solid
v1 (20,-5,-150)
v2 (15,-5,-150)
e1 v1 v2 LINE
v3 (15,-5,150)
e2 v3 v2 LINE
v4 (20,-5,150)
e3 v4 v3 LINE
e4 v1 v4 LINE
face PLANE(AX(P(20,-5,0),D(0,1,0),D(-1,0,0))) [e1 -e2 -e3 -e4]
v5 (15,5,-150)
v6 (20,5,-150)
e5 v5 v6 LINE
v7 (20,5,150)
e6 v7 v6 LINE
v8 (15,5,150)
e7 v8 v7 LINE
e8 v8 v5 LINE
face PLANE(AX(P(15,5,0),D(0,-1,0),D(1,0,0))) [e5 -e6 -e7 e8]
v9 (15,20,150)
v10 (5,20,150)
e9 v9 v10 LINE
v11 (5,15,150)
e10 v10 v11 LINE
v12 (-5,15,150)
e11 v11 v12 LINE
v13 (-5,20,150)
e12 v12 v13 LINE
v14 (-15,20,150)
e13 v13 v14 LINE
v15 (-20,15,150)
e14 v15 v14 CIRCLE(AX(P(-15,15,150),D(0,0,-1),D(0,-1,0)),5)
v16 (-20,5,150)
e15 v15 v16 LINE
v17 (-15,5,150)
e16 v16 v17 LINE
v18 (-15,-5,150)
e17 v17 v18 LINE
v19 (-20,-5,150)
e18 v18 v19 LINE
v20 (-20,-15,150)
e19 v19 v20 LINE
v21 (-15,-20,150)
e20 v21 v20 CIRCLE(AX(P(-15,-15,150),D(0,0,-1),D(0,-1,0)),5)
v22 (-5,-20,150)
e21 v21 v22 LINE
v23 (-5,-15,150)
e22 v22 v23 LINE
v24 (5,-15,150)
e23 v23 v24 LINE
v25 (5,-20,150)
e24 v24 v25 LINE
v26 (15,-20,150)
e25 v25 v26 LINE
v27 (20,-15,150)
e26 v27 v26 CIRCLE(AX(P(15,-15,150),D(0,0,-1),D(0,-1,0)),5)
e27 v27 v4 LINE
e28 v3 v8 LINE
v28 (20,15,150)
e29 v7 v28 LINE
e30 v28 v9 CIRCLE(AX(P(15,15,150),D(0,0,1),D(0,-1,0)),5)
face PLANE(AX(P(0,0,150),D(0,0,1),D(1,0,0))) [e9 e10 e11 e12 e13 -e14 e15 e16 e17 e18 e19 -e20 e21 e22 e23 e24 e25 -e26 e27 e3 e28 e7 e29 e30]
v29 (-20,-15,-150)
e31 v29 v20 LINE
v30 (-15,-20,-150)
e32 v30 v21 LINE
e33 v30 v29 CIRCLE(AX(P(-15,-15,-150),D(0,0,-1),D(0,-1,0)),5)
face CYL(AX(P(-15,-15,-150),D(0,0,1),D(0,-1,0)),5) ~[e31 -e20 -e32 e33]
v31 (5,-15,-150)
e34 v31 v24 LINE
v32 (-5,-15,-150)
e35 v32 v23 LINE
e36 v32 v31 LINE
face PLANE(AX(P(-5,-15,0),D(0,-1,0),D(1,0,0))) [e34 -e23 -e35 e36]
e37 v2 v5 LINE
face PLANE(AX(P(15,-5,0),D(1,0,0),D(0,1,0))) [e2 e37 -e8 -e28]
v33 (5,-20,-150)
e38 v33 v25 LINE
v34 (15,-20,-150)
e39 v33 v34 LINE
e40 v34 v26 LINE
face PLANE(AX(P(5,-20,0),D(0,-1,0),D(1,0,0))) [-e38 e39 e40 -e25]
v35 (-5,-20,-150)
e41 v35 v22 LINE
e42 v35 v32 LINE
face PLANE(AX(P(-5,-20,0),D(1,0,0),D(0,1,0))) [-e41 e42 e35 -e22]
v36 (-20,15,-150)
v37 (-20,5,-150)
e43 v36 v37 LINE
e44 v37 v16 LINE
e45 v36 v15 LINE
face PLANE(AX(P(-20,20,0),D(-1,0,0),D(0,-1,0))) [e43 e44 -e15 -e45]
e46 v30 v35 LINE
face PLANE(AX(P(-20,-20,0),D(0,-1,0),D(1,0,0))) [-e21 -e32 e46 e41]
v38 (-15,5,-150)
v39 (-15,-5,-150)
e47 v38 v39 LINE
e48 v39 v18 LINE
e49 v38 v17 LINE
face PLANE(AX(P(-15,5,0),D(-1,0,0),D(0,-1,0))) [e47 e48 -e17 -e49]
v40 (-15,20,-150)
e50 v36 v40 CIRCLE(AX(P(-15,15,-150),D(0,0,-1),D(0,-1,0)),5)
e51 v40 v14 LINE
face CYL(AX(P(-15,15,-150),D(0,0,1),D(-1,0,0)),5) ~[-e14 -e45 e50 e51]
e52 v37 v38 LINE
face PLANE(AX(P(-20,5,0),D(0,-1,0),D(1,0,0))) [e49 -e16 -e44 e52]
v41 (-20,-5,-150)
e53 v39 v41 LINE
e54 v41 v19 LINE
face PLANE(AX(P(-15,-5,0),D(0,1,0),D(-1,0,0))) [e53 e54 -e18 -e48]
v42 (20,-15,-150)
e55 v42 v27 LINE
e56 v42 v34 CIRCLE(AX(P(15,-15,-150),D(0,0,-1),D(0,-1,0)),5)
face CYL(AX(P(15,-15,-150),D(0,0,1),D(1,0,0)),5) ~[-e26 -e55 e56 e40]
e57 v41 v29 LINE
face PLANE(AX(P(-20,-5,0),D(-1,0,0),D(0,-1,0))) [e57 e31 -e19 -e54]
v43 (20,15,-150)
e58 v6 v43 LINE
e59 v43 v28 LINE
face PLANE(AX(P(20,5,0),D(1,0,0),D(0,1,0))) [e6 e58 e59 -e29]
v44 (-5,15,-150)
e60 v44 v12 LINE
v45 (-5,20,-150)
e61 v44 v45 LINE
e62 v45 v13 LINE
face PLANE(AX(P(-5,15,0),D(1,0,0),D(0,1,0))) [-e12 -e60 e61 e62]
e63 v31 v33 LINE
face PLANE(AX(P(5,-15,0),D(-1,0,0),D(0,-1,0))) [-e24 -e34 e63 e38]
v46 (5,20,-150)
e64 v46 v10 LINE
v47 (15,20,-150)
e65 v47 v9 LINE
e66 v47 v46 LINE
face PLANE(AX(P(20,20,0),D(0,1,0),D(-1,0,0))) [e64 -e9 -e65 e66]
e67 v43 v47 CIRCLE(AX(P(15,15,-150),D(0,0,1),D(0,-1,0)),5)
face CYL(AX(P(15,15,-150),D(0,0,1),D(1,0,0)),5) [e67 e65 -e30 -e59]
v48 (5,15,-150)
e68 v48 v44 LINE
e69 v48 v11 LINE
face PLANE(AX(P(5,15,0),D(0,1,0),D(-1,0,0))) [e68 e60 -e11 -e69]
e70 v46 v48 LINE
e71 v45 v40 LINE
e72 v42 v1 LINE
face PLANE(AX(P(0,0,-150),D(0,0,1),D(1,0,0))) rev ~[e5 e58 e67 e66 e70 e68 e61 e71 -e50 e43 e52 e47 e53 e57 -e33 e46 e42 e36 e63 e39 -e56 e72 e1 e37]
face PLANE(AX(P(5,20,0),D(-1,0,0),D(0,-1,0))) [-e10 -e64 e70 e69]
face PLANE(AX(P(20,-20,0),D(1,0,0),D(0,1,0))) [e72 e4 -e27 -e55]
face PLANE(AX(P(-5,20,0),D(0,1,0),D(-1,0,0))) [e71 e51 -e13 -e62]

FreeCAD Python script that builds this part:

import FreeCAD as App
import Part
import Sketcher
from FreeCAD import Vector


def edges_at(feature, points):
    """Names of the edges that pass closest to the given points."""
    edges = feature.Shape.Edges
    near = lambda p: min(range(len(edges)), key=lambda i: edges[i].distToShape(Part.Vertex(*p))[0])
    return sorted({f"Edge{near(p) + 1}" for p in points})

doc = App.newDocument("Part")
body = doc.addObject("PartDesign::Body", "Body")

sketch1 = body.newObject("Sketcher::SketchObject", "Sketch")
sketch1.AttachmentSupport = (doc.getObject("XY_Plane"), [""])
sketch1.MapMode = "FlatFace"
sketch1.addGeometry(Part.LineSegment(Vector(20, 5, 0), Vector(20, 20, 0)), False)
sketch1.addGeometry(Part.LineSegment(Vector(20, 20, 0), Vector(5, 20, 0)), False)
sketch1.addGeometry(Part.LineSegment(Vector(5, 20, 0), Vector(5, 15, 0)), False)
sketch1.addGeometry(Part.LineSegment(Vector(5, 15, 0), Vector(-5, 15, 0)), False)
sketch1.addGeometry(Part.LineSegment(Vector(-5, 15, 0), Vector(-5, 20, 0)), False)
sketch1.addGeometry(Part.LineSegment(Vector(-5, 20, 0), Vector(-20, 20, 0)), False)
sketch1.addGeometry(Part.LineSegment(Vector(-20, 20, 0), Vector(-20, 5, 0)), False)
sketch1.addGeometry(Part.LineSegment(Vector(-20, 5, 0), Vector(-15, 5, 0)), False)
sketch1.addGeometry(Part.LineSegment(Vector(-15, 5, 0), Vector(-15, -5, 0)), False)
sketch1.addGeometry(Part.LineSegment(Vector(-15, -5, 0), Vector(-20, -5, 0)), False)
sketch1.addGeometry(Part.LineSegment(Vector(-20, -5, 0), Vector(-20, -20, 0)), False)
sketch1.addGeometry(Part.LineSegment(Vector(-20, -20, 0), Vector(-5, -20, 0)), False)
sketch1.addGeometry(Part.LineSegment(Vector(-5, -20, 0), Vector(-5, -15, 0)), False)
sketch1.addGeometry(Part.LineSegment(Vector(-5, -15, 0), Vector(5, -15, 0)), False)
sketch1.addGeometry(Part.LineSegment(Vector(5, -15, 0), Vector(5, -20, 0)), False)
sketch1.addGeometry(Part.LineSegment(Vector(5, -20, 0), Vector(20, -20, 0)), False)
sketch1.addGeometry(Part.LineSegment(Vector(20, -20, 0), Vector(20, -5, 0)), False)
sketch1.addGeometry(Part.LineSegment(Vector(20, -5, 0), Vector(15, -5, 0)), False)
sketch1.addGeometry(Part.LineSegment(Vector(15, -5, 0), Vector(15, 5, 0)), False)
sketch1.addGeometry(Part.LineSegment(Vector(15, 5, 0), Vector(20, 5, 0)), False)
sketch1.addConstraint(Sketcher.Constraint("Coincident", 0, 2, 1, 1))
sketch1.addConstraint(Sketcher.Constraint("Coincident", 1, 2, 2, 1))
sketch1.addConstraint(Sketcher.Constraint("Coincident", 2, 2, 3, 1))
sketch1.addConstraint(Sketcher.Constraint("Coincident", 3, 2, 4, 1))
sketch1.addConstraint(Sketcher.Constraint("Coincident", 4, 2, 5, 1))
sketch1.addConstraint(Sketcher.Constraint("Coincident", 5, 2, 6, 1))
sketch1.addConstraint(Sketcher.Constraint("Coincident", 6, 2, 7, 1))
sketch1.addConstraint(Sketcher.Constraint("Coincident", 7, 2, 8, 1))
sketch1.addConstraint(Sketcher.Constraint("Coincident", 8, 2, 9, 1))
sketch1.addConstraint(Sketcher.Constraint("Coincident", 9, 2, 10, 1))
sketch1.addConstraint(Sketcher.Constraint("Coincident", 10, 2, 11, 1))
sketch1.addConstraint(Sketcher.Constraint("Coincident", 11, 2, 12, 1))
sketch1.addConstraint(Sketcher.Constraint("Coincident", 12, 2, 13, 1))
sketch1.addConstraint(Sketcher.Constraint("Coincident", 13, 2, 14, 1))
sketch1.addConstraint(Sketcher.Constraint("Coincident", 14, 2, 15, 1))
sketch1.addConstraint(Sketcher.Constraint("Coincident", 15, 2, 16, 1))
sketch1.addConstraint(Sketcher.Constraint("Coincident", 16, 2, 17, 1))
sketch1.addConstraint(Sketcher.Constraint("Coincident", 17, 2, 18, 1))
sketch1.addConstraint(Sketcher.Constraint("Coincident", 18, 2, 19, 1))
sketch1.addConstraint(Sketcher.Constraint("Coincident", 19, 2, 0, 1))
sketch1.addConstraint(Sketcher.Constraint("Vertical", 0))
sketch1.addConstraint(Sketcher.Constraint("Horizontal", 1))
sketch1.addConstraint(Sketcher.Constraint("Vertical", 2))
sketch1.addConstraint(Sketcher.Constraint("Horizontal", 3))
sketch1.addConstraint(Sketcher.Constraint("Vertical", 4))
sketch1.addConstraint(Sketcher.Constraint("Horizontal", 5))
sketch1.addConstraint(Sketcher.Constraint("Vertical", 6))
sketch1.addConstraint(Sketcher.Constraint("Horizontal", 7))
sketch1.addConstraint(Sketcher.Constraint("Vertical", 8))
sketch1.addConstraint(Sketcher.Constraint("Horizontal", 9))
sketch1.addConstraint(Sketcher.Constraint("Vertical", 10))
sketch1.addConstraint(Sketcher.Constraint("Horizontal", 11))
sketch1.addConstraint(Sketcher.Constraint("Vertical", 12))
sketch1.addConstraint(Sketcher.Constraint("Horizontal", 13))
sketch1.addConstraint(Sketcher.Constraint("Vertical", 14))
sketch1.addConstraint(Sketcher.Constraint("Horizontal", 15))
sketch1.addConstraint(Sketcher.Constraint("Vertical", 16))
sketch1.addConstraint(Sketcher.Constraint("Horizontal", 17))
sketch1.addConstraint(Sketcher.Constraint("Vertical", 18))
sketch1.addConstraint(Sketcher.Constraint("Horizontal", 19))
sketch1.addConstraint(Sketcher.Constraint("Symmetric", 0, 2, 10, 2, -1, 1))
sketch1.addConstraint(Sketcher.Constraint("Symmetric", 2, 2, 12, 2, -1, 1))
sketch1.addConstraint(Sketcher.Constraint("Symmetric", 4, 2, 14, 2, -1, 1))
sketch1.addConstraint(Sketcher.Constraint("Symmetric", 6, 2, 16, 2, -1, 1))
sketch1.addConstraint(Sketcher.Constraint("Symmetric", 8, 2, 18, 2, -1, 1))
sketch1.addConstraint(Sketcher.Constraint("Symmetric", 1, 2, 4, 2, -2))
sketch1.addConstraint(Sketcher.Constraint("Symmetric", 9, 2, 16, 2, -2))
sketch1.addConstraint(Sketcher.Constraint("Equal", 15, 0))
sketch1.addConstraint(Sketcher.Constraint("Equal", 19, 2))
sketch1.addConstraint(Sketcher.Constraint("Equal", 13, 8))
sketch1.addConstraint(Sketcher.Constraint("DistanceX", 1, 2, 1, 1, 15.0))
sketch1.addConstraint(Sketcher.Constraint("DistanceX", 3, 2, 3, 1, 10.0))
sketch1.addConstraint(Sketcher.Constraint("DistanceX", 7, 1, 7, 2, 5.0))
pad1 = body.newObject("PartDesign::Pad", "Pad")
pad1.Profile = sketch1
pad1.Length = 300
pad1.Midplane = True
doc.recompute()

fillet = body.newObject("PartDesign::Fillet", "Fillet")
fillet.Base = (pad1, edges_at(pad1, [
    (20, 20, 0),
    (-20, 20, 0),
    (-20, -20, 0),
    (20, -20, 0),
]))
fillet.Radius = 5

doc.recompute()
